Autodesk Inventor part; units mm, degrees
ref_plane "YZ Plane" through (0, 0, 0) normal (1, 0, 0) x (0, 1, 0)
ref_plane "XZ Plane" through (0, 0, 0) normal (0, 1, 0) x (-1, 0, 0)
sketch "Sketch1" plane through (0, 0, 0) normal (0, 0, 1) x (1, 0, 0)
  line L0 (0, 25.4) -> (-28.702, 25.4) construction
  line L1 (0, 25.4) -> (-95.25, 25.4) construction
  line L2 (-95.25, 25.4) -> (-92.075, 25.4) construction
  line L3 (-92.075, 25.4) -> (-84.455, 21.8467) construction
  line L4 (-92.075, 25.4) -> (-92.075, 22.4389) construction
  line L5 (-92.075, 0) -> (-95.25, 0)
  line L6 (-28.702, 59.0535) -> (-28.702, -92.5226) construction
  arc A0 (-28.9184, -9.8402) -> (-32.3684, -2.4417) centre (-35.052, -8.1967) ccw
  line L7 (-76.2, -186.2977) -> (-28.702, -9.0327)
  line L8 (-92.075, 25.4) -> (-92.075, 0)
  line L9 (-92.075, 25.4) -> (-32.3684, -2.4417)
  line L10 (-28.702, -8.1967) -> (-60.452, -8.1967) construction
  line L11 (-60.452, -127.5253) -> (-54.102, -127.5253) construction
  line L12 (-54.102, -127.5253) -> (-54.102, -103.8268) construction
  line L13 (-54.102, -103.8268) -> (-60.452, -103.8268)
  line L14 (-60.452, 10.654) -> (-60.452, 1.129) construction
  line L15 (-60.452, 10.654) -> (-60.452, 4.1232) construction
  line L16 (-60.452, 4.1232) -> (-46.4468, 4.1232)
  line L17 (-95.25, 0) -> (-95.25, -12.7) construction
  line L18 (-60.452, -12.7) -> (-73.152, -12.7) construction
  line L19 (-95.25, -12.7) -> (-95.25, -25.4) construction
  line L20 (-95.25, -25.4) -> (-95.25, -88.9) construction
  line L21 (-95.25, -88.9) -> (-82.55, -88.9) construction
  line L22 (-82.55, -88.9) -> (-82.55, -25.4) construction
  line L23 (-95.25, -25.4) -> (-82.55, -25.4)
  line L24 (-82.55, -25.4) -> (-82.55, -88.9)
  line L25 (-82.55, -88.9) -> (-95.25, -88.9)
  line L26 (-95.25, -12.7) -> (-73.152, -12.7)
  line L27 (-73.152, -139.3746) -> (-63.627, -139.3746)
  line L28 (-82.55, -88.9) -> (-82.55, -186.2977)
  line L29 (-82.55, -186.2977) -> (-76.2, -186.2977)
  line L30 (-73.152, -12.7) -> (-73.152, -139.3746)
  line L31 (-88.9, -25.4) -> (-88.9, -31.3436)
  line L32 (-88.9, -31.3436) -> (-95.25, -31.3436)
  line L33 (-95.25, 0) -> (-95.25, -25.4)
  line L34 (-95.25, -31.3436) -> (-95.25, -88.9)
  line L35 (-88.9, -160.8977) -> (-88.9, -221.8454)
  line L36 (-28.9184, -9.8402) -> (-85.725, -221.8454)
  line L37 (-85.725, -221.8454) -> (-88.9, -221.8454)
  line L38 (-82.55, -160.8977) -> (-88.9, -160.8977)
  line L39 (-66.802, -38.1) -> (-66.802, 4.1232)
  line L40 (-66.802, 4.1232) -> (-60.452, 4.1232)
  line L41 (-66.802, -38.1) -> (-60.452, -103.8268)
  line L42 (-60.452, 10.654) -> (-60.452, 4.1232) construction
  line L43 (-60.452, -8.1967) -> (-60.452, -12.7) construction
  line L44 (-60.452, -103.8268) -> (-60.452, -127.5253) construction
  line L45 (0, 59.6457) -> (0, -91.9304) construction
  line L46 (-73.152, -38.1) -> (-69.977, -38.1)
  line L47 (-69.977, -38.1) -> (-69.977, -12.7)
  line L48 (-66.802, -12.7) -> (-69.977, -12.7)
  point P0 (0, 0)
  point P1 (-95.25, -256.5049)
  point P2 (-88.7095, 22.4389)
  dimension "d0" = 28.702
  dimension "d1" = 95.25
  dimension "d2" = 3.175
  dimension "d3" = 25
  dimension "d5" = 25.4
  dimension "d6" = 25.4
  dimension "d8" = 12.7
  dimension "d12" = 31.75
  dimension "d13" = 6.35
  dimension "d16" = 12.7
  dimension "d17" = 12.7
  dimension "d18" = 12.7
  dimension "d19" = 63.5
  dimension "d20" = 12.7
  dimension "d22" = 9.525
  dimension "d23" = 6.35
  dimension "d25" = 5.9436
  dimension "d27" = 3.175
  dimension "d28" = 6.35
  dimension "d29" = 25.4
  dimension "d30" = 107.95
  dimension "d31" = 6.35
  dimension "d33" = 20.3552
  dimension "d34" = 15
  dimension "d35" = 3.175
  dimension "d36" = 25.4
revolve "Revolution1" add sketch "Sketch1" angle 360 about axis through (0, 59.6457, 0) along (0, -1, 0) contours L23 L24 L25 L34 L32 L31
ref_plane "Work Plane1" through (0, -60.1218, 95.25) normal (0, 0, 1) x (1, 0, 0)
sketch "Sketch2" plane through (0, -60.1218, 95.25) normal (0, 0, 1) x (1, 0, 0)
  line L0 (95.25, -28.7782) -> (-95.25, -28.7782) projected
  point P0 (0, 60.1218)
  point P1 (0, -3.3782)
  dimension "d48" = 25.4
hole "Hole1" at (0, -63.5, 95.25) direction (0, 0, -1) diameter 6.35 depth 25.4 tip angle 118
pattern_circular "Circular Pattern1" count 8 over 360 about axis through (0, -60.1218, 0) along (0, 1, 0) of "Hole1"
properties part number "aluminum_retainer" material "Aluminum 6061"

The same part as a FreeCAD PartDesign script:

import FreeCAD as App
import Part
import Sketcher
from FreeCAD import Vector
Q = App.Units.Quantity

doc = App.newDocument("Part")
body = doc.addObject("PartDesign::Body", "Body")

# Sketch on XY plane
sketch1 = body.newObject("Sketcher::SketchObject", "Sketch")
sketch1.AttachmentSupport = (doc.getObject("XY_Plane"), [""])
sketch1.MapMode = "FlatFace"
sketch1.addGeometry(Part.LineSegment(Vector(-83, -25, 0), Vector(-89, -25, 0)), False)
sketch1.addGeometry(Part.LineSegment(Vector(-89, -25, 0), Vector(-89, -31, 0)), False)
sketch1.addGeometry(Part.LineSegment(Vector(-89, -31, 0), Vector(-95, -31, 0)), False)
sketch1.addGeometry(Part.LineSegment(Vector(-95, -31, 0), Vector(-95, -89, 0)), False)
sketch1.addGeometry(Part.LineSegment(Vector(-95, -89, 0), Vector(-83, -89, 0)), False)
sketch1.addGeometry(Part.LineSegment(Vector(-83, -89, 0), Vector(-83, -25, 0)), False)
sketch1.addConstraint(Sketcher.Constraint("Coincident", 0, 2, 1, 1))
sketch1.addConstraint(Sketcher.Constraint("Coincident", 1, 2, 2, 1))
sketch1.addConstraint(Sketcher.Constraint("Coincident", 2, 2, 3, 1))
sketch1.addConstraint(Sketcher.Constraint("Coincident", 3, 2, 4, 1))
sketch1.addConstraint(Sketcher.Constraint("Coincident", 4, 2, 5, 1))
sketch1.addConstraint(Sketcher.Constraint("Coincident", 5, 2, 0, 1))
sketch1.addConstraint(Sketcher.Constraint("Horizontal", 0))
sketch1.addConstraint(Sketcher.Constraint("Vertical", 1))
sketch1.addConstraint(Sketcher.Constraint("Horizontal", 2))
sketch1.addConstraint(Sketcher.Constraint("Vertical", 3))
sketch1.addConstraint(Sketcher.Constraint("Horizontal", 4))
sketch1.addConstraint(Sketcher.Constraint("Vertical", 5))
sketch1.addConstraint(Sketcher.Constraint("Equal", 0, 2))
sketch1.addConstraint(Sketcher.Constraint("DistanceX", 4, 1, 4, 2, Q("0.5 in")))
sketch1.addConstraint(Sketcher.Constraint("DistanceY", 5, 1, 5, 2, Q("2.5 in")))
sketch1.addConstraint(Sketcher.Constraint("DistanceY", 0, 2, -1, 1, Q("1 in")))
sketch1.addConstraint(Sketcher.Constraint("DistanceY", 1, 2, 1, 1, Q("0.234 in")))
sketch1.addConstraint(Sketcher.Constraint("DistanceX", 2, 2, -1, 1, Q("3.75 in")))
revolution = body.newObject("PartDesign::Revolution", "Revolution")
revolution.Profile = sketch1
revolution.ReferenceAxis = (sketch1, ["V_Axis"])
revolution.Angle = 360

# Sketch on XY plane
sketch2 = body.newObject("Sketcher::SketchObject", "Sketch001")
sketch2.AttachmentSupport = (doc.getObject("XY_Plane"), [""])
sketch2.MapMode = "FlatFace"
sketch2.AttachmentOffset = App.Placement(Vector(0, 0, 3.75 * 25.4), App.Rotation())
sketch2.addGeometry(Part.Circle(Vector(0, -63.5, 0), Vector(0, 0, 1), 3.2), False)
sketch2.addConstraint(Sketcher.Constraint("PointOnObject", 0, 3, -2))
sketch2.addConstraint(Sketcher.Constraint("Diameter", 0, Q("0.25 in")))
sketch2.addConstraint(Sketcher.Constraint("DistanceY", 0, 3, -1, 1, Q("2.5 in")))
doc.recompute()
hole = body.newObject("PartDesign::Hole", "Hole")
hole.Profile = sketch2
hole.ThreadType = "None"
hole.Diameter = Q("0.25 in")
hole.DepthType = "Dimension"
hole.Depth = Q("1 in")
hole.DrillPoint = "Angled"
hole.DrillPointAngle = 118
doc.recompute()

polarpattern = body.newObject("PartDesign::PolarPattern", "PolarPattern")
polarpattern.Originals = [hole]
polarpattern.Axis = (doc.getObject("Y_Axis"), [""])
polarpattern.Angle = 360
polarpattern.Occurrences = 8
body.Tip = polarpattern

doc.recompute()
